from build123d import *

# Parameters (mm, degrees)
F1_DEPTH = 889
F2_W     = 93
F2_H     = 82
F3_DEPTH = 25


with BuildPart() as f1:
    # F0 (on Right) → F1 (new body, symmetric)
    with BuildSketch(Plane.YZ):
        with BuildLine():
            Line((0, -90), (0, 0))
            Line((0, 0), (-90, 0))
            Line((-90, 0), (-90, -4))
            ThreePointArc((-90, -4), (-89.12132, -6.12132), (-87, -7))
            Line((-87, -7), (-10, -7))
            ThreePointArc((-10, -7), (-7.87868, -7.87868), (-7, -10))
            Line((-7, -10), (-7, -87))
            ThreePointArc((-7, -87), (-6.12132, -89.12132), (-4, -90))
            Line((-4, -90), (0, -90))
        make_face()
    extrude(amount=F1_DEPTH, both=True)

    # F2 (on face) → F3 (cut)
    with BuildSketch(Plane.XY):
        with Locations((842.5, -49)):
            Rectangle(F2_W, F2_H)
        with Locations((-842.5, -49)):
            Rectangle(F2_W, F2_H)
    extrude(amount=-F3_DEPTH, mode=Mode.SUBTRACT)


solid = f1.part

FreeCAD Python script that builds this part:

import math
import FreeCAD as App
import Part
import Sketcher
from FreeCAD import Vector
Q = App.Units.Quantity

doc = App.newDocument("Part")
body = doc.addObject("PartDesign::Body", "Body")

sketch1 = body.newObject("Sketcher::SketchObject", "Sketch")
sketch1.AttachmentSupport = (doc.getObject("YZ_Plane"), [""])
sketch1.MapMode = "FlatFace"
sketch1.addGeometry(Part.LineSegment(Vector(0, -90, 0), Vector(0, 0, 0)), False)
sketch1.addGeometry(Part.LineSegment(Vector(0, 0, 0), Vector(-90, 0, 0)), False)
sketch1.addGeometry(Part.LineSegment(Vector(-90, 0, 0), Vector(-90, -4, 0)), False)
sketch1.addGeometry(Part.ArcOfCircle(Part.Circle(Vector(-87, -4, 0), Vector(0, 0, 1), 3), math.radians(-180), math.radians(-90)), False)
sketch1.addGeometry(Part.LineSegment(Vector(-87, -7, 0), Vector(-10, -7, 0)), False)
sketch1.addGeometry(Part.ArcOfCircle(Part.Circle(Vector(-10, -10, 0), Vector(0, 0, 1), 3), math.radians(0), math.radians(90)), False)
sketch1.addGeometry(Part.LineSegment(Vector(-7, -10, 0), Vector(-7, -87, 0)), False)
sketch1.addGeometry(Part.ArcOfCircle(Part.Circle(Vector(-4, -87, 0), Vector(0, 0, 1), 3), math.radians(-180), math.radians(-90)), False)
sketch1.addGeometry(Part.LineSegment(Vector(-4, -90, 0), Vector(0, -90, 0)), False)
sketch1.addConstraint(Sketcher.Constraint("Coincident", 0, 2, 1, 1))
sketch1.addConstraint(Sketcher.Constraint("Coincident", 1, 2, 2, 1))
sketch1.addConstraint(Sketcher.Constraint("Tangent", 2, 2, 3, 1))
sketch1.addConstraint(Sketcher.Constraint("Tangent", 3, 2, 4, 1))
sketch1.addConstraint(Sketcher.Constraint("Tangent", 4, 2, 5, 2))
sketch1.addConstraint(Sketcher.Constraint("Tangent", 5, 1, 6, 1))
sketch1.addConstraint(Sketcher.Constraint("Tangent", 6, 2, 7, 1))
sketch1.addConstraint(Sketcher.Constraint("Tangent", 7, 2, 8, 1))
sketch1.addConstraint(Sketcher.Constraint("Coincident", 8, 2, 0, 1))
sketch1.addConstraint(Sketcher.Constraint("Vertical", 0))
sketch1.addConstraint(Sketcher.Constraint("Horizontal", 1))
sketch1.addConstraint(Sketcher.Constraint("Vertical", 2))
sketch1.addConstraint(Sketcher.Constraint("Horizontal", 4))
sketch1.addConstraint(Sketcher.Constraint("Vertical", 6))
sketch1.addConstraint(Sketcher.Constraint("Horizontal", 8))
sketch1.addConstraint(Sketcher.Constraint("Coincident", 0, 2, -1, 1))
sketch1.addConstraint(Sketcher.Constraint("Equal", 3, 5))
sketch1.addConstraint(Sketcher.Constraint("Equal", 5, 7))
sketch1.addConstraint(Sketcher.Constraint("Equal", 1, 0))
sketch1.addConstraint(Sketcher.Constraint("Equal", 8, 2))
sketch1.addConstraint(Sketcher.Constraint("Radius", 3, Q("3.000001 mm")))
sketch1.addConstraint(Sketcher.Constraint("DistanceX", 1, 2, 1, 1, Q("90 mm")))
sketch1.addConstraint(Sketcher.Constraint("DistanceX", 4, 1, 4, 2, Q("77 mm")))
pad1 = body.newObject("PartDesign::Pad", "Pad")
pad1.Profile = sketch1
pad1.Length = 1778
pad1.Midplane = True

sketch2 = body.newObject("Sketcher::SketchObject", "Sketch001")
sketch2.AttachmentSupport = (doc.getObject("XY_Plane"), [""])
sketch2.MapMode = "FlatFace"
sketch2.addGeometry(Part.LineSegment(Vector(796, -8, 0), Vector(796, -90, 0)), False)
sketch2.addGeometry(Part.LineSegment(Vector(796, -90, 0), Vector(889, -90, 0)), False)
sketch2.addGeometry(Part.LineSegment(Vector(889, -90, 0), Vector(889, -8, 0)), False)
sketch2.addGeometry(Part.LineSegment(Vector(889, -8, 0), Vector(796, -8, 0)), False)
sketch2.addGeometry(Part.LineSegment(Vector(-889, -8, 0), Vector(-889, -90, 0)), False)
sketch2.addGeometry(Part.LineSegment(Vector(-889, -90, 0), Vector(-796, -90, 0)), False)
sketch2.addGeometry(Part.LineSegment(Vector(-796, -90, 0), Vector(-796, -8, 0)), False)
sketch2.addGeometry(Part.LineSegment(Vector(-796, -8, 0), Vector(-889, -8, 0)), False)
sketch2.addConstraint(Sketcher.Constraint("Coincident", 0, 2, 1, 1))
sketch2.addConstraint(Sketcher.Constraint("Coincident", 1, 2, 2, 1))
sketch2.addConstraint(Sketcher.Constraint("Coincident", 2, 2, 3, 1))
sketch2.addConstraint(Sketcher.Constraint("Coincident", 3, 2, 0, 1))
sketch2.addConstraint(Sketcher.Constraint("Coincident", 4, 2, 5, 1))
sketch2.addConstraint(Sketcher.Constraint("Coincident", 5, 2, 6, 1))
sketch2.addConstraint(Sketcher.Constraint("Coincident", 6, 2, 7, 1))
sketch2.addConstraint(Sketcher.Constraint("Coincident", 7, 2, 4, 1))
sketch2.addConstraint(Sketcher.Constraint("Vertical", 0))
sketch2.addConstraint(Sketcher.Constraint("Horizontal", 1))
sketch2.addConstraint(Sketcher.Constraint("Vertical", 2))
sketch2.addConstraint(Sketcher.Constraint("Horizontal", 3))
sketch2.addConstraint(Sketcher.Constraint("Vertical", 4))
sketch2.addConstraint(Sketcher.Constraint("Horizontal", 5))
sketch2.addConstraint(Sketcher.Constraint("Vertical", 6))
sketch2.addConstraint(Sketcher.Constraint("Horizontal", 7))
sketch2.addConstraint(Sketcher.Constraint("Symmetric", 1, 2, 4, 2, -2))
sketch2.addConstraint(Sketcher.Constraint("Symmetric", 3, 2, 6, 2, -2))
sketch2.addConstraint(Sketcher.Constraint("DistanceX", 1, 1, 1, 2, Q("93 mm")))
sketch2.addConstraint(Sketcher.Constraint("DistanceY", 0, 2, 0, 1, Q("82 mm")))
sketch2.addConstraint(Sketcher.Constraint("DistanceX", -1, 1, 0, 2, Q("796 mm")))
sketch2.addConstraint(Sketcher.Constraint("DistanceY", 0, 2, -1, 1, Q("90 mm")))
pocket1 = body.newObject("PartDesign::Pocket", "Pocket")
pocket1.Profile = sketch2
pocket1.Length = 25

doc.recompute()
